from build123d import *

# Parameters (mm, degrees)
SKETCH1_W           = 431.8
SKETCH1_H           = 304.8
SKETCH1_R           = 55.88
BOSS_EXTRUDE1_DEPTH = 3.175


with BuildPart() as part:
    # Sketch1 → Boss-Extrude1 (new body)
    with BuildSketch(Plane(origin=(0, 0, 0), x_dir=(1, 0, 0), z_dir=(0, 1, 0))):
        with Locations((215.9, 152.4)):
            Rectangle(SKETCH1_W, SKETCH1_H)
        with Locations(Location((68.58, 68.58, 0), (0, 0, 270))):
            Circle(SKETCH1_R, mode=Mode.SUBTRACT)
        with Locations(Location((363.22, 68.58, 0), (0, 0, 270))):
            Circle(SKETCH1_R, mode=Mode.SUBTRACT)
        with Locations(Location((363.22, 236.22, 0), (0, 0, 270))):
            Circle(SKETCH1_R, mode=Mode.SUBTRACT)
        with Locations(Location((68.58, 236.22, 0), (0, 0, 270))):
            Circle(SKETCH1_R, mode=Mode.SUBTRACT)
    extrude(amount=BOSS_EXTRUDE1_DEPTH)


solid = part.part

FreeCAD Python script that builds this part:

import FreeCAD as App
import Part
import Sketcher
Q = App.Units.Quantity


def add_polygon(sketch, points):
    """Adds a closed chain of lines whose ends are joined by coincident constraints."""
    first, n = sketch.GeometryCount, len(points)
    for a, b in zip(points, points[1:] + points[:1]):
        sketch.addGeometry(Part.LineSegment(App.Vector(*a, 0), App.Vector(*b, 0)), False)
    for i in range(n):
        sketch.addConstraint(Sketcher.Constraint("Coincident", first + i, 2, first + (i + 1) % n, 1))

doc = App.newDocument("Part")
body = doc.addObject("PartDesign::Body", "Body")

# Sketch on XZ plane
sketch1 = body.newObject("Sketcher::SketchObject", "Sketch")
sketch1.AttachmentSupport = (doc.getObject("XZ_Plane"), [""])
sketch1.MapMode = "FlatFace"
add_polygon(sketch1, [(0, -304.8), (0, 0), (431.8, 0), (431.8, -304.8)])  # lines 0-3
sketch1.addGeometry(Part.Circle(App.Vector(68.58, -68.58, 0), App.Vector(0, 0, 1), 55.88), False)  # 4
sketch1.addGeometry(Part.Circle(App.Vector(363.22, -68.58, 0), App.Vector(0, 0, 1), 55.88), False)  # 5
sketch1.addGeometry(Part.Circle(App.Vector(68.58, -236.22, 0), App.Vector(0, 0, 1), 55.88), False)  # 6
sketch1.addGeometry(Part.Circle(App.Vector(363.22, -236.22, 0), App.Vector(0, 0, 1), 55.88), False)  # 7
sketch1.addConstraint([
    Sketcher.Constraint("Vertical", 0),
    Sketcher.Constraint("Horizontal", 1),
    Sketcher.Constraint("Vertical", 2),
    Sketcher.Constraint("Horizontal", 3),
    Sketcher.Constraint("Coincident", 0, 2, -1, 1),
    Sketcher.Constraint("Equal", 4, 5),
    Sketcher.Constraint("Equal", 5, 6),
    Sketcher.Constraint("Equal", 6, 7),
    Sketcher.Constraint("Horizontal", 4, 3, 5, 3),
    Sketcher.Constraint("Horizontal", 6, 3, 7, 3),
    Sketcher.Constraint("Vertical", 4, 3, 6, 3),
    Sketcher.Constraint("Vertical", 5, 3, 7, 3),
    Sketcher.Constraint("Diameter", 4, Q("4.4 in")),
    Sketcher.Constraint("DistanceX", 1, 1, 1, 2, Q("17 in")),
    Sketcher.Constraint("DistanceY", 0, 1, 0, 2, Q("12 in")),
    Sketcher.Constraint("DistanceX", -1, 1, 4, 3, Q("2.7 in")),
    Sketcher.Constraint("DistanceY", 4, 3, -1, 1, Q("2.7 in")),
    Sketcher.Constraint("DistanceX", -1, 1, 5, 3, Q("14.3 in")),
    Sketcher.Constraint("DistanceY", 6, 3, -1, 1, Q("9.3 in")),
])
pad1 = body.newObject("PartDesign::Pad", "Pad")
pad1.Profile = sketch1
pad1.Length = Q("0.125 in")
pad1.Reversed = True

doc.recompute()
